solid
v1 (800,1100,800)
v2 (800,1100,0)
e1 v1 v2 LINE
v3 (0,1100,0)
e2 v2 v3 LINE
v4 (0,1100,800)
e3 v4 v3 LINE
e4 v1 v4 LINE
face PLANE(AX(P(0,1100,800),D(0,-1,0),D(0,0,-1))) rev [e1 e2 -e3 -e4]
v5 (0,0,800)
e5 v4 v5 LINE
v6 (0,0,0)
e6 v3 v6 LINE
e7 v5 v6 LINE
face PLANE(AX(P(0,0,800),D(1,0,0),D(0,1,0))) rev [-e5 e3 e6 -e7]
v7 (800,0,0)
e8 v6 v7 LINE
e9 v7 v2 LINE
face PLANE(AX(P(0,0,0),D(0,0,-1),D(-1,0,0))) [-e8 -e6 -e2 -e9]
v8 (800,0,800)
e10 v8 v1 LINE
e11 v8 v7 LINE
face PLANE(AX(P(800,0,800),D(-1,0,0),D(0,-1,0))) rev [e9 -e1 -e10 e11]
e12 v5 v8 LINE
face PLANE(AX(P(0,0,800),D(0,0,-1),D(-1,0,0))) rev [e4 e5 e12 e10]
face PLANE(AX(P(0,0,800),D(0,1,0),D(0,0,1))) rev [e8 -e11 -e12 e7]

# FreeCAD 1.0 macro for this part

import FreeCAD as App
import Part
import Sketcher
from FreeCAD import Vector

doc = App.newDocument("Part")
body = doc.addObject("PartDesign::Body", "Body")

# Sketch on XY plane
sketch1 = body.newObject("Sketcher::SketchObject", "Sketch")
sketch1.AttachmentSupport = (doc.getObject("XY_Plane"), [""])
sketch1.MapMode = "FlatFace"
sketch1.addGeometry(Part.LineSegment(Vector(0, 1100, 0), Vector(0, 0, 0)), False)
sketch1.addGeometry(Part.LineSegment(Vector(0, 0, 0), Vector(800, 0, 0)), False)
sketch1.addGeometry(Part.LineSegment(Vector(800, 0, 0), Vector(800, 1100, 0)), False)
sketch1.addGeometry(Part.LineSegment(Vector(800, 1100, 0), Vector(0, 1100, 0)), False)
sketch1.addConstraint(Sketcher.Constraint("Coincident", 0, 2, 1, 1))
sketch1.addConstraint(Sketcher.Constraint("Coincident", 1, 2, 2, 1))
sketch1.addConstraint(Sketcher.Constraint("Coincident", 2, 2, 3, 1))
sketch1.addConstraint(Sketcher.Constraint("Coincident", 3, 2, 0, 1))
sketch1.addConstraint(Sketcher.Constraint("Vertical", 0))
sketch1.addConstraint(Sketcher.Constraint("Horizontal", 1))
sketch1.addConstraint(Sketcher.Constraint("Vertical", 2))
sketch1.addConstraint(Sketcher.Constraint("Horizontal", 3))
sketch1.addConstraint(Sketcher.Constraint("Coincident", 0, 2, -1, 1))
sketch1.addConstraint(Sketcher.Constraint("DistanceX", 1, 1, 1, 2, 800.0))
sketch1.addConstraint(Sketcher.Constraint("DistanceY", 0, 2, 0, 1, 1100.0))
pad1 = body.newObject("PartDesign::Pad", "Pad")
pad1.Profile = sketch1
pad1.Length = 800

doc.recompute()
